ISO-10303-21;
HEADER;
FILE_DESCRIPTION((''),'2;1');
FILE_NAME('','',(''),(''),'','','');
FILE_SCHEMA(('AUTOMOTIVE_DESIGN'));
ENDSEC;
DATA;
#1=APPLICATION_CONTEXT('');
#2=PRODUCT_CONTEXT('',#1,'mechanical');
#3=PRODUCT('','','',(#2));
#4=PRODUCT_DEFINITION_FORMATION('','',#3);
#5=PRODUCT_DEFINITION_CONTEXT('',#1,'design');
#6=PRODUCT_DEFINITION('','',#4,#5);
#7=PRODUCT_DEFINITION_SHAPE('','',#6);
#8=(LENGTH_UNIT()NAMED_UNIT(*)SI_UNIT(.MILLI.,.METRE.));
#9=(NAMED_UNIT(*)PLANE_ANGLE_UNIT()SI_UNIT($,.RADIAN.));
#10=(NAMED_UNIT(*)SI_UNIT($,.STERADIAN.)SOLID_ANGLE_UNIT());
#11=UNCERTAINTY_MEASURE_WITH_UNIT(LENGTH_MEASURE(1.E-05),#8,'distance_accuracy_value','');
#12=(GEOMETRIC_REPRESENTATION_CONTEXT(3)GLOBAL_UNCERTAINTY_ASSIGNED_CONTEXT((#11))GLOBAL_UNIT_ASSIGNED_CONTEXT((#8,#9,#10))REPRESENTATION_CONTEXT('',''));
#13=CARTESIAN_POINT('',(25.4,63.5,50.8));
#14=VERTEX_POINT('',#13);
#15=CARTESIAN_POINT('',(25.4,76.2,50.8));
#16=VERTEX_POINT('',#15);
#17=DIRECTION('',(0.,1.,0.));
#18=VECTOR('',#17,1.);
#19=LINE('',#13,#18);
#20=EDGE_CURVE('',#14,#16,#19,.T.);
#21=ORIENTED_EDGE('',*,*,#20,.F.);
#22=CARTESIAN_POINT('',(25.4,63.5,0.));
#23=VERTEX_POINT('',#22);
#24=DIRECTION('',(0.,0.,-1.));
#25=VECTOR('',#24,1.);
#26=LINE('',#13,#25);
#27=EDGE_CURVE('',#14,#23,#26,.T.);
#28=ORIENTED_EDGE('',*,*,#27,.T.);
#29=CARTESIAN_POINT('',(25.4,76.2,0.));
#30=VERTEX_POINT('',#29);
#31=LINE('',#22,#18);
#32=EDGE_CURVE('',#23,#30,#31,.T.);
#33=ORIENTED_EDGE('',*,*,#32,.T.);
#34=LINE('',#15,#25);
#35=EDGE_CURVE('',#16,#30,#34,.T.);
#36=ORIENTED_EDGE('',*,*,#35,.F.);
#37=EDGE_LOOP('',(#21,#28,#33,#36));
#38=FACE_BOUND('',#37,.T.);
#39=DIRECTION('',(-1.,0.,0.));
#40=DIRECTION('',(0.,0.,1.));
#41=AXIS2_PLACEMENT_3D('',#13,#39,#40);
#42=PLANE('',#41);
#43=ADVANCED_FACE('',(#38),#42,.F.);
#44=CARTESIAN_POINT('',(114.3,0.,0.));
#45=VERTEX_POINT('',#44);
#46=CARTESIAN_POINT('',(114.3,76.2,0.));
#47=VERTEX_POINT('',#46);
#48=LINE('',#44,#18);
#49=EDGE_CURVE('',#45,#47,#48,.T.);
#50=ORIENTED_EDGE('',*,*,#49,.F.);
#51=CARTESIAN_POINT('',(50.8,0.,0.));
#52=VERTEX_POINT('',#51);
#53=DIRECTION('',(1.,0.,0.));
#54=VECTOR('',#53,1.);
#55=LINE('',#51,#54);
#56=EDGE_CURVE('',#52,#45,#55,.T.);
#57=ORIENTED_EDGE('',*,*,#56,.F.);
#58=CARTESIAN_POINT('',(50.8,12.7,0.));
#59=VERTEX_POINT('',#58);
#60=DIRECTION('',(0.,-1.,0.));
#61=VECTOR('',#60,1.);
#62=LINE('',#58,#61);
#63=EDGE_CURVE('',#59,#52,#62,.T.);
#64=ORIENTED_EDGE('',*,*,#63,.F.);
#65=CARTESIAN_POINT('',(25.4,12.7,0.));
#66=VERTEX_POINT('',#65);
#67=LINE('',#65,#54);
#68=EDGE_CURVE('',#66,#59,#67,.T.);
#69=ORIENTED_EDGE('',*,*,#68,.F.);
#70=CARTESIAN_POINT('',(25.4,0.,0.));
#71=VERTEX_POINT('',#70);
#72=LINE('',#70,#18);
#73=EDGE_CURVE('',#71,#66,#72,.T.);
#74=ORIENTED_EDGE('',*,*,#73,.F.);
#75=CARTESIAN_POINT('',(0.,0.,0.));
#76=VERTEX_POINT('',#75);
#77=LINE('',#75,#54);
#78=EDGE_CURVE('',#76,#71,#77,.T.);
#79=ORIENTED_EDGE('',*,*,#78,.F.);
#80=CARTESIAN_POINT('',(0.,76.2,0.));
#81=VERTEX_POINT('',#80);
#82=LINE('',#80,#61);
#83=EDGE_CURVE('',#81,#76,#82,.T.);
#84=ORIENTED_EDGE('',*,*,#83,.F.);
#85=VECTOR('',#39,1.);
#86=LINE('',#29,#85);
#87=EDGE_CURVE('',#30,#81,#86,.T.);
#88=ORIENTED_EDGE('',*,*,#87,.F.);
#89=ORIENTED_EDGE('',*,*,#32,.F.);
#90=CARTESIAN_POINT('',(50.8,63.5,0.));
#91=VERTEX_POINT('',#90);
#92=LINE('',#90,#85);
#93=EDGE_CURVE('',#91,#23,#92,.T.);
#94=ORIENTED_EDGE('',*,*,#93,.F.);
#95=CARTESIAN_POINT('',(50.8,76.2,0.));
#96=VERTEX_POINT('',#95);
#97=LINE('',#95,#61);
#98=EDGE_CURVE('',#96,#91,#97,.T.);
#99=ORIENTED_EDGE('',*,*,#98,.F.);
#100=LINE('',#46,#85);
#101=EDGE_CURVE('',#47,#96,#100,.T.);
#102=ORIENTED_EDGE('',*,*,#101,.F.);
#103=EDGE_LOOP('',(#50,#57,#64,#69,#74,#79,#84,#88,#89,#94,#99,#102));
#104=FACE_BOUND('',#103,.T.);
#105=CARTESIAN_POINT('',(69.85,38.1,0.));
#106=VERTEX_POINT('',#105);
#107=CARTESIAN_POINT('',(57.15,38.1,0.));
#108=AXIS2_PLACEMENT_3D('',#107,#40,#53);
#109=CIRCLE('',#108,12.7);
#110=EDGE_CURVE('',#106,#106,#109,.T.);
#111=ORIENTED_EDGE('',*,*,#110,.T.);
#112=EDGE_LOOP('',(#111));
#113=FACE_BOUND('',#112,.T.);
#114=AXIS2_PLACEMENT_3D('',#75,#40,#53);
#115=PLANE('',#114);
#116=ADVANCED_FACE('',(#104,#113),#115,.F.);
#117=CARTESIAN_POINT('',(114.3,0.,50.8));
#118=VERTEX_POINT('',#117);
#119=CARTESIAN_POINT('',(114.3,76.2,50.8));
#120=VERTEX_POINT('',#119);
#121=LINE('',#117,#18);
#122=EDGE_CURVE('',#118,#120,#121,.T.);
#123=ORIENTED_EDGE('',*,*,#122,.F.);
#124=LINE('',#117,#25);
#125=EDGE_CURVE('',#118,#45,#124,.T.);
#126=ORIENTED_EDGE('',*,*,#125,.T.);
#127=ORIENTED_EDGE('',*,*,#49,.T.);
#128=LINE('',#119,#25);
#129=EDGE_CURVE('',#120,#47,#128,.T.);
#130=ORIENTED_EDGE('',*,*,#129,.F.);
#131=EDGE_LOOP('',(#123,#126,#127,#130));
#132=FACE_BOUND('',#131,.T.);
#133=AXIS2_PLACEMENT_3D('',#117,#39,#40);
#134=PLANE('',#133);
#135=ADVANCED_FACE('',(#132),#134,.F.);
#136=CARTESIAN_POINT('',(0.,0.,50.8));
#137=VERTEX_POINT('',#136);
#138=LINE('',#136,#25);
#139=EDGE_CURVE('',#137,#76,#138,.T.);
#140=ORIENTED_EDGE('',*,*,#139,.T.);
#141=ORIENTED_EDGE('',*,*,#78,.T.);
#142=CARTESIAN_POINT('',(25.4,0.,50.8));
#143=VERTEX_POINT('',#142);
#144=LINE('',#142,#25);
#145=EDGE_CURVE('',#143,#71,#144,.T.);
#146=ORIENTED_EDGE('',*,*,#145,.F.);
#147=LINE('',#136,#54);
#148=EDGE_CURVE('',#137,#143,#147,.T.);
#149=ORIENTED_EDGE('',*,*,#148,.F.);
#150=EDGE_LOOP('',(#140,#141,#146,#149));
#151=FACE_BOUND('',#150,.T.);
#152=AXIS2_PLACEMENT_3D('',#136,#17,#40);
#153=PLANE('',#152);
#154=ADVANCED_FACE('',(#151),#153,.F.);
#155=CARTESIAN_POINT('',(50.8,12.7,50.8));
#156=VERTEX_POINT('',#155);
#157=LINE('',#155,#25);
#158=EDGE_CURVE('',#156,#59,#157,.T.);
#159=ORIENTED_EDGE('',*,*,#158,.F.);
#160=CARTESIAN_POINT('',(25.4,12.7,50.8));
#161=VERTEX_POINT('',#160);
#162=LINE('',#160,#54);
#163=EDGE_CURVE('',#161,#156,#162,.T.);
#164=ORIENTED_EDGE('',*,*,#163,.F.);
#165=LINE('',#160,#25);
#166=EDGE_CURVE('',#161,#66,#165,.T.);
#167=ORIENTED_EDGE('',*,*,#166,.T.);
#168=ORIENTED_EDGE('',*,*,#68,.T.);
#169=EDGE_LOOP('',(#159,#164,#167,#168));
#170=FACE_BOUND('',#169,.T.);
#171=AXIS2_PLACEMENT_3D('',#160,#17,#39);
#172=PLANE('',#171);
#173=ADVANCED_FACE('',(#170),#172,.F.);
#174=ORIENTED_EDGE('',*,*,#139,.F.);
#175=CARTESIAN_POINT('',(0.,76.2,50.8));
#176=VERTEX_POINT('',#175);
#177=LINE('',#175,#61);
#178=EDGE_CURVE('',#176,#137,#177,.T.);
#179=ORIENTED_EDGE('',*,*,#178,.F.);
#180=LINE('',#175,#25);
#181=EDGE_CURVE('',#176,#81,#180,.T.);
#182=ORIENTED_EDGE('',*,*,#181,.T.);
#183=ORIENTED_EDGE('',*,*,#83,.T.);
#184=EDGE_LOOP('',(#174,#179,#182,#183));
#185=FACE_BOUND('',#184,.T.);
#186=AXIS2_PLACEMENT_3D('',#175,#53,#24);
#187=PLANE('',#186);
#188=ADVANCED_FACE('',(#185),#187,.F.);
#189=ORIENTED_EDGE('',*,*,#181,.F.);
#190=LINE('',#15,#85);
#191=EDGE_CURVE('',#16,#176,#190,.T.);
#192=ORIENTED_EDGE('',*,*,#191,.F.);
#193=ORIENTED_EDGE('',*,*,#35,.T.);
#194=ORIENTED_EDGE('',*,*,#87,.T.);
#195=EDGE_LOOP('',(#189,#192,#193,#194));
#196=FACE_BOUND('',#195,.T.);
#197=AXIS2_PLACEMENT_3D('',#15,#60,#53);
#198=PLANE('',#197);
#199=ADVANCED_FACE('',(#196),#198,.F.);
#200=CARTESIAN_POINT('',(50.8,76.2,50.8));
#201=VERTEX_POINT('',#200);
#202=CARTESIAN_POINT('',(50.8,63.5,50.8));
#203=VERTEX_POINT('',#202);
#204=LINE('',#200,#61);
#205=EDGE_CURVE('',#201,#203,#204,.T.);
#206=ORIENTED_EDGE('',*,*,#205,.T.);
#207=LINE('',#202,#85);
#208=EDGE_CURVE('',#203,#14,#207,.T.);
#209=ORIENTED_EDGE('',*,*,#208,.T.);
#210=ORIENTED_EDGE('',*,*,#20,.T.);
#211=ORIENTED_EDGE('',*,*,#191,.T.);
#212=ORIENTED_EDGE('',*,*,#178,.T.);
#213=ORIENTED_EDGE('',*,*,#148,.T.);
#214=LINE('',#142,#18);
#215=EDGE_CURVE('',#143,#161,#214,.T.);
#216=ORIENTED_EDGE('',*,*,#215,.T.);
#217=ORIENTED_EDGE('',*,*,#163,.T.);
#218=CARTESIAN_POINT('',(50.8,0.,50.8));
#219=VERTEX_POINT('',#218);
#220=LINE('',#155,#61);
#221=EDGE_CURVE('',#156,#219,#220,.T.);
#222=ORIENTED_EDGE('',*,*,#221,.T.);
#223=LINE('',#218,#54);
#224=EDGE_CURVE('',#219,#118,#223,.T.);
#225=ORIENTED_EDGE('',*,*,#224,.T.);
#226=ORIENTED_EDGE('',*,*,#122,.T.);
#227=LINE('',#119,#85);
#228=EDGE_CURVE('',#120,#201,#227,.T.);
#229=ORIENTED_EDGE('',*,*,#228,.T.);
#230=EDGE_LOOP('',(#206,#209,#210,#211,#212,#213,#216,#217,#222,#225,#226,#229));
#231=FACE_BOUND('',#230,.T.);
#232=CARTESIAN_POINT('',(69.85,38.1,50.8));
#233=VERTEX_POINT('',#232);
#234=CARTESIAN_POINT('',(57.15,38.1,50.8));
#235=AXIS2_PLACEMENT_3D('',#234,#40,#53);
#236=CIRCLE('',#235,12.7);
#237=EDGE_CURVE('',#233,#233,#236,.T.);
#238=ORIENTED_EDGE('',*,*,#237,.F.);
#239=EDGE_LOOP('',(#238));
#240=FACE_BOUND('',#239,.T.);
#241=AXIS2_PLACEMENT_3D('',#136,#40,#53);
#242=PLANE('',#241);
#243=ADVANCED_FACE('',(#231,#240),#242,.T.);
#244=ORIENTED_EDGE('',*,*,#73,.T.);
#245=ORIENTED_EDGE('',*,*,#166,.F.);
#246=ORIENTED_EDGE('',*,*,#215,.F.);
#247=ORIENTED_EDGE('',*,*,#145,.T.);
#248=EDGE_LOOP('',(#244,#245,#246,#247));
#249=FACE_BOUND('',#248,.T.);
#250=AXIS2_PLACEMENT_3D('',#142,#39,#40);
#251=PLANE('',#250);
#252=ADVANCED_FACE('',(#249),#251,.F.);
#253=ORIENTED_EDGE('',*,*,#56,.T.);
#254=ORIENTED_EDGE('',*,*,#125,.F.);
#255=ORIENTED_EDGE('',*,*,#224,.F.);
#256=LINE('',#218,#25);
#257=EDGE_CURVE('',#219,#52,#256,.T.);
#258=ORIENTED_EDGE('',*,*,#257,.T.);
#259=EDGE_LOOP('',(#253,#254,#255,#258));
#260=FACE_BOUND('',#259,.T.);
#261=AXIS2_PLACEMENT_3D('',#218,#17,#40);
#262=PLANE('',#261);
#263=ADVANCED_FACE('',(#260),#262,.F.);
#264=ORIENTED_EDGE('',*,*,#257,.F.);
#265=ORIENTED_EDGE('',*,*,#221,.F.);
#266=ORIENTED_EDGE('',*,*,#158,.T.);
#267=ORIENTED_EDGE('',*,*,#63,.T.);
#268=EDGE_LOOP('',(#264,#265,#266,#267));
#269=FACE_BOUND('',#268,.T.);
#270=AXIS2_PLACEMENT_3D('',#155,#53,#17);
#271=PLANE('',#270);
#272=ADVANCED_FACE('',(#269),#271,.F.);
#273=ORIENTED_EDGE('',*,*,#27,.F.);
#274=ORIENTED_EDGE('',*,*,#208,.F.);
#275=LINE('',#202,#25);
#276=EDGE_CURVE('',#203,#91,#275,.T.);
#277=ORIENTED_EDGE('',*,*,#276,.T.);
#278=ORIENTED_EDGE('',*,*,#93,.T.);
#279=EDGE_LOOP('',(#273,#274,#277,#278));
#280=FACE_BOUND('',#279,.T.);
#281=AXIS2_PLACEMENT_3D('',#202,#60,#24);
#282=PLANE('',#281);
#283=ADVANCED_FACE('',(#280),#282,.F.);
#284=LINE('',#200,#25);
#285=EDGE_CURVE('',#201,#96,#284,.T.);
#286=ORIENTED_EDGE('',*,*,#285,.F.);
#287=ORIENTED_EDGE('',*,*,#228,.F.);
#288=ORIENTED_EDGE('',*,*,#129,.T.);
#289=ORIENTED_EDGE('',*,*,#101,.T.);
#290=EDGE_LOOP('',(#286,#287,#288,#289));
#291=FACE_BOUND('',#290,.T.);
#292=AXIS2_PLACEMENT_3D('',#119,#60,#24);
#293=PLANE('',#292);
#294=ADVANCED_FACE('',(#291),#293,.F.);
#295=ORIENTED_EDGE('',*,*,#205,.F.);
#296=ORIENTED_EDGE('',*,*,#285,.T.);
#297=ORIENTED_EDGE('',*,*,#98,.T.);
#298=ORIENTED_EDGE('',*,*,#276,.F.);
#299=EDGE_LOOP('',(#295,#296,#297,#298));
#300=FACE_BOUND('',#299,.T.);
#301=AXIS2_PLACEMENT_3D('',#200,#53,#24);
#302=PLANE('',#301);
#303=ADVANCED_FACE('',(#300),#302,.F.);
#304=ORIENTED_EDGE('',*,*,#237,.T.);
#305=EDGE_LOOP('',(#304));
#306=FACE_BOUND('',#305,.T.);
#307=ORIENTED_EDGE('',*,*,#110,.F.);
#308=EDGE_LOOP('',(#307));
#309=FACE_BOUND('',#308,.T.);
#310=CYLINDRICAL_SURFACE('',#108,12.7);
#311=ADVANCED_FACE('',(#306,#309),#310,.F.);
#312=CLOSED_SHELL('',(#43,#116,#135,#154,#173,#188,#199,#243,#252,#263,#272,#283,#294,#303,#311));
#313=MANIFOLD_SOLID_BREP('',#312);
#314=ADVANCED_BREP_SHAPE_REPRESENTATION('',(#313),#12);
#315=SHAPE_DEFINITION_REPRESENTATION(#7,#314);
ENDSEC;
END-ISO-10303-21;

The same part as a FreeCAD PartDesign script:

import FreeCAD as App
import Part
import Sketcher
Q = App.Units.Quantity

doc = App.newDocument("Part")
body = doc.addObject("PartDesign::Body", "Body")

# Sketch on XY plane
sketch1 = body.newObject("Sketcher::SketchObject", "Sketch")
sketch1.AttachmentSupport = (doc.getObject("XY_Plane"), [""])
sketch1.MapMode = "FlatFace"
sketch1.addGeometry([
    Part.LineSegment(App.Vector(0, 76, 0), App.Vector(0, 0, 0)),  # 0
    Part.LineSegment(App.Vector(0, 0, 0), App.Vector(25, 0, 0)),  # 1
    Part.LineSegment(App.Vector(25, 0, 0), App.Vector(25, 13, 0)),  # 2
    Part.LineSegment(App.Vector(25, 13, 0), App.Vector(51, 13, 0)),  # 3
    Part.LineSegment(App.Vector(51, 13, 0), App.Vector(51, 0, 0)),  # 4
    Part.LineSegment(App.Vector(51, 0, 0), App.Vector(114, 0, 0)),  # 5
    Part.LineSegment(App.Vector(114, 0, 0), App.Vector(114, 76, 0)),  # 6
    Part.LineSegment(App.Vector(114, 76, 0), App.Vector(51, 76, 0)),  # 7
    Part.LineSegment(App.Vector(51, 76, 0), App.Vector(51, 64, 0)),  # 8
    Part.LineSegment(App.Vector(51, 64, 0), App.Vector(25, 64, 0)),  # 9
    Part.LineSegment(App.Vector(25, 64, 0), App.Vector(25, 76, 0)),  # 10
    Part.LineSegment(App.Vector(25, 76, 0), App.Vector(0, 76, 0)),  # 11
], False)
sketch1.addConstraint([
    Sketcher.Constraint("Coincident", 0, 2, 1, 1),
    Sketcher.Constraint("Coincident", 1, 2, 2, 1),
    Sketcher.Constraint("Coincident", 2, 2, 3, 1),
    Sketcher.Constraint("Coincident", 3, 2, 4, 1),
    Sketcher.Constraint("Coincident", 4, 2, 5, 1),
    Sketcher.Constraint("Coincident", 5, 2, 6, 1),
    Sketcher.Constraint("Coincident", 6, 2, 7, 1),
    Sketcher.Constraint("Coincident", 7, 2, 8, 1),
    Sketcher.Constraint("Coincident", 8, 2, 9, 1),
    Sketcher.Constraint("Coincident", 9, 2, 10, 1),
    Sketcher.Constraint("Coincident", 10, 2, 11, 1),
    Sketcher.Constraint("Coincident", 11, 2, 0, 1),
    Sketcher.Constraint("Vertical", 0),
    Sketcher.Constraint("Horizontal", 1),
    Sketcher.Constraint("Vertical", 2),
    Sketcher.Constraint("Horizontal", 3),
    Sketcher.Constraint("Vertical", 4),
    Sketcher.Constraint("Horizontal", 5),
    Sketcher.Constraint("Vertical", 6),
    Sketcher.Constraint("Horizontal", 7),
    Sketcher.Constraint("Vertical", 8),
    Sketcher.Constraint("Horizontal", 9),
    Sketcher.Constraint("Vertical", 10),
    Sketcher.Constraint("Horizontal", 11),
    Sketcher.Constraint("Coincident", 0, 2, -1, 1),
    Sketcher.Constraint("PointOnObject", 4, 2, -1),
    Sketcher.Constraint("Horizontal", 7, 2, 10, 2),
    Sketcher.Constraint("Vertical", 4, 2, 7, 2),
    Sketcher.Constraint("Vertical", 2, 2, 9, 2),
    Sketcher.Constraint("Equal", 1, 3),
    Sketcher.Constraint("Equal", 4, 8),
    Sketcher.Constraint("DistanceX", 1, 1, 1, 2, Q("1 in")),
    Sketcher.Constraint("DistanceY", 0, 2, 0, 1, Q("3 in")),
    Sketcher.Constraint("DistanceX", 5, 1, 5, 2, Q("2.5 in")),
    Sketcher.Constraint("DistanceY", 2, 1, 2, 2, Q("0.5 in")),
])
pad1 = body.newObject("PartDesign::Pad", "Pad")
pad1.Profile = sketch1
pad1.Length = Q("2 in")

# Sketch on XY plane
sketch2 = body.newObject("Sketcher::SketchObject", "Sketch001")
sketch2.AttachmentSupport = (doc.getObject("XY_Plane"), [""])
sketch2.MapMode = "FlatFace"
sketch2.AttachmentOffset = App.Placement(App.Vector(0, 0, 2 * 25.4), App.Rotation())
sketch2.addGeometry(Part.Circle(App.Vector(57, 38, 0), App.Vector(0, 0, 1), 13), False)
sketch2.addConstraint([
    Sketcher.Constraint("Diameter", 0, Q("1 in")),
    Sketcher.Constraint("DistanceY", -1, 1, 0, 3, Q("1.5 in")),
    Sketcher.Constraint("DistanceX", -1, 1, 0, 3, Q("2.25 in")),
])
pocket1 = body.newObject("PartDesign::Pocket", "Pocket")
pocket1.Profile = sketch2
pocket1.Length = Q("2 in")

doc.recompute()
